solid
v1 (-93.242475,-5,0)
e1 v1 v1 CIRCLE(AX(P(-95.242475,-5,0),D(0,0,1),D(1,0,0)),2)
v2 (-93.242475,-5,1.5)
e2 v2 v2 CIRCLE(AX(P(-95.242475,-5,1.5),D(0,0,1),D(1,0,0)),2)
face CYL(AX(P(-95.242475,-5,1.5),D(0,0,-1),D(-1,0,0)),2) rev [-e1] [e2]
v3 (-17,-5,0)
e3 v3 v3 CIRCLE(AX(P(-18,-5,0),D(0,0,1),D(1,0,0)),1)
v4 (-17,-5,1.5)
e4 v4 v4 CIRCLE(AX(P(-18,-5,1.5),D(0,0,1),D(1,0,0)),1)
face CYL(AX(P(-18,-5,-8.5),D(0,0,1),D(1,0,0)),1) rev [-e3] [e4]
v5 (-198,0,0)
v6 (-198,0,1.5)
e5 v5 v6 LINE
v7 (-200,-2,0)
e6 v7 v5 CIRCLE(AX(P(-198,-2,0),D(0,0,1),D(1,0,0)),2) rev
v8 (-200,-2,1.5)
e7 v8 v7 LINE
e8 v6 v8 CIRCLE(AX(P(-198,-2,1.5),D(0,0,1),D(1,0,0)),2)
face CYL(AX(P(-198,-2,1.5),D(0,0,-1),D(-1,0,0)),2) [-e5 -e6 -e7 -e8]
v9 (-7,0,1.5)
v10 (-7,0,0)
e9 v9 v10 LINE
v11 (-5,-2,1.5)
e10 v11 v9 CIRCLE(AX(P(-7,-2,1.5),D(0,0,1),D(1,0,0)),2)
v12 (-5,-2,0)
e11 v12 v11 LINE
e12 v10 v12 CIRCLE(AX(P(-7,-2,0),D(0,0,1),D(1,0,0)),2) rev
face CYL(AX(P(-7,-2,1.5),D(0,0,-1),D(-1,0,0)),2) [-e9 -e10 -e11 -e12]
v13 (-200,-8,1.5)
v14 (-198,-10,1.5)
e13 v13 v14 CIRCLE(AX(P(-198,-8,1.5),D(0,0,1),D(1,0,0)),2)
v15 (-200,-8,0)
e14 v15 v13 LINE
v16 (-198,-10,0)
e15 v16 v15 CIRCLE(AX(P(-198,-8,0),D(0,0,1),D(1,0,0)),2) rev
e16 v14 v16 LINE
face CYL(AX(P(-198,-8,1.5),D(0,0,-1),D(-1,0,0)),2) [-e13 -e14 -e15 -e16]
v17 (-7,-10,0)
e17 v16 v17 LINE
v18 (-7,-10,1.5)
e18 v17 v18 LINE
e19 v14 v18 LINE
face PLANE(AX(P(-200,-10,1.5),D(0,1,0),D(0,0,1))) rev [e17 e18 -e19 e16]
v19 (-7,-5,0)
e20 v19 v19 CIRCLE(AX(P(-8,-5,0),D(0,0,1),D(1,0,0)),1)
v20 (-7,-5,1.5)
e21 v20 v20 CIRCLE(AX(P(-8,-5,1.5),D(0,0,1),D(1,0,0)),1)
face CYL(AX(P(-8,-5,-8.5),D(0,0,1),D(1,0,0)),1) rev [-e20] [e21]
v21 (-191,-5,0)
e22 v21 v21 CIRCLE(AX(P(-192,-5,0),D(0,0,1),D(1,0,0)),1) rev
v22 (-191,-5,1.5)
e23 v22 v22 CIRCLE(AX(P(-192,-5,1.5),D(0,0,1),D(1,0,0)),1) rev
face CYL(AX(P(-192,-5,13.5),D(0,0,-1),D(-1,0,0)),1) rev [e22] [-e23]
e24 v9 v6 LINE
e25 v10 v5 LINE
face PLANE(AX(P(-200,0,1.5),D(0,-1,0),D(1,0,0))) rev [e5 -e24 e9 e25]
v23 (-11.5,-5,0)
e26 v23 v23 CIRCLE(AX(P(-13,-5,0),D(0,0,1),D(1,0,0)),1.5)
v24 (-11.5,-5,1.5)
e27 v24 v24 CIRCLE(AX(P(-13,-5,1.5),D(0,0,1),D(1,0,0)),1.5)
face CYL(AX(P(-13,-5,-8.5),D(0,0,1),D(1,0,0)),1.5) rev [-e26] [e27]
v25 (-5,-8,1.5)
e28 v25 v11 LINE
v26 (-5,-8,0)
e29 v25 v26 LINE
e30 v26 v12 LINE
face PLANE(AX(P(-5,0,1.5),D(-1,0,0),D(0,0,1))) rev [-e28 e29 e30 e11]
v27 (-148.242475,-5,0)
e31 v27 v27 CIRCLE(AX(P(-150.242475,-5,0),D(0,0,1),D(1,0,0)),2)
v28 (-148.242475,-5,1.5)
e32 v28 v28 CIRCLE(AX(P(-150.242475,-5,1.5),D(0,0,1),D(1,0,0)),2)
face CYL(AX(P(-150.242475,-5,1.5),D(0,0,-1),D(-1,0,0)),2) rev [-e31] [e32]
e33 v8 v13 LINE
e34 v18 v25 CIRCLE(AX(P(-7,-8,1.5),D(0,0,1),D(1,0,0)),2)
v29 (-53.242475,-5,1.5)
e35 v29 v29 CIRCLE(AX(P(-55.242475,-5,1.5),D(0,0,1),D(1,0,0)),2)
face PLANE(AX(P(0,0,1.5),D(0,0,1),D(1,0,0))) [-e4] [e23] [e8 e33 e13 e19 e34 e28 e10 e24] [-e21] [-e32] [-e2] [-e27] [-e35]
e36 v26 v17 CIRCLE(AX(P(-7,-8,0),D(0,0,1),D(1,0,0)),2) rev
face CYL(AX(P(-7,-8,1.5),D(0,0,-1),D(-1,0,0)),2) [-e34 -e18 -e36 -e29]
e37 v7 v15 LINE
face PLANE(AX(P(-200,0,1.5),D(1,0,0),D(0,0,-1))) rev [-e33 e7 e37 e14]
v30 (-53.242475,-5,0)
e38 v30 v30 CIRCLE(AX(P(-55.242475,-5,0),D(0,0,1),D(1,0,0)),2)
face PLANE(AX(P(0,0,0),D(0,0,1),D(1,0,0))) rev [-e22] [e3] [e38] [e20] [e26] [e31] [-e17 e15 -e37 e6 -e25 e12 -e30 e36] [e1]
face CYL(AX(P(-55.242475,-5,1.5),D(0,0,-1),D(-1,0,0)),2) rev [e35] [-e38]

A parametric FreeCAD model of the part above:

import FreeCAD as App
import Part
import Sketcher

V = App.Vector


def edges_at(feature, points):
    """Names of the edges that pass closest to the given points."""
    edges = feature.Shape.Edges
    near = lambda p: min(range(len(edges)), key=lambda i: edges[i].distToShape(Part.Vertex(*p))[0])
    return sorted({f"Edge{near(p) + 1}" for p in points})


def add_polygon(sketch, points):
    """Adds a closed chain of lines whose ends are joined by coincident constraints."""
    first, n = sketch.GeometryCount, len(points)
    for a, b in zip(points, points[1:] + points[:1]):
        sketch.addGeometry(Part.LineSegment(App.Vector(*a, 0), App.Vector(*b, 0)), False)
    for i in range(n):
        sketch.addConstraint(Sketcher.Constraint("Coincident", first + i, 2, first + (i + 1) % n, 1))

doc = App.newDocument("Part")
body = doc.addObject("PartDesign::Body", "Body")

sketch1 = body.newObject("Sketcher::SketchObject", "Sketch")
sketch1.AttachmentSupport = (doc.getObject("XY_Plane"), [""])
sketch1.MapMode = "FlatFace"
add_polygon(sketch1, [(-200, 0), (-200, -10), (-5, -10), (-5, 0)])
sketch1.addGeometry(Part.Circle(V(-150.242475, -5, 0), V(0, 0, 1), 2), False)
sketch1.addGeometry(Part.Circle(V(-95.242475, -5, 0), V(0, 0, 1), 2), False)
sketch1.addGeometry(Part.Circle(V(-55.242475, -5, 0), V(0, 0, 1), 2), False)
sketch1.addConstraint([
    Sketcher.Constraint("Vertical", 0),
    Sketcher.Constraint("Horizontal", 1),
    Sketcher.Constraint("Vertical", 2),
    Sketcher.Constraint("Horizontal", 3),
    Sketcher.Constraint("Equal", 4, 5),
    Sketcher.Constraint("Equal", 5, 6),
    Sketcher.Constraint("PointOnObject", 2, 2, -1),
    Sketcher.Constraint("Horizontal", 4, 3, 5, 3),
    Sketcher.Constraint("Horizontal", 5, 3, 6, 3),
    Sketcher.Constraint("Diameter", 4, 4.0),
    Sketcher.Constraint("DistanceX", 1, 1, 1, 2, 195.0),
    Sketcher.Constraint("DistanceY", 0, 2, 0, 1, 10.0),
    Sketcher.Constraint("DistanceY", 4, 3, -1, 1, 5.0),
    Sketcher.Constraint("DistanceX", 0, 2, -1, 1, 200.0),
    Sketcher.Constraint("DistanceX", 4, 3, 5, 3, 55.0),
    Sketcher.Constraint("DistanceX", 5, 3, 6, 3, 40.0),
    Sketcher.Constraint("DistanceX", 4, 3, -1, 1, 150.242475),
])
pad1 = body.newObject("PartDesign::Pad", "Pad")
pad1.Profile = sketch1
pad1.Length = 1.5

sketch2 = body.newObject("Sketcher::SketchObject", "Sketch001")
sketch2.AttachmentSupport = (doc.getObject("XY_Plane"), [""])
sketch2.MapMode = "FlatFace"
sketch2.AttachmentOffset = App.Placement(V(0, 0, 1.5), App.Rotation())
sketch2.addGeometry(Part.Circle(V(-192, -5, 0), V(0, 0, 1), 1), False)
sketch2.addConstraint([
    Sketcher.Constraint("Diameter", 0, 2.0),
    Sketcher.Constraint("DistanceX", 0, 3, -1, 1, 192.0),
    Sketcher.Constraint("DistanceY", 0, 3, -1, 1, 5.0),
])
pocket1 = body.newObject("PartDesign::Pocket", "Pocket")
pocket1.Profile = sketch2
pocket1.Type = "ThroughAll"
pocket1.Midplane = True

sketch3 = body.newObject("Sketcher::SketchObject", "Sketch002")
sketch3.AttachmentSupport = (doc.getObject("XY_Plane"), [""])
sketch3.MapMode = "FlatFace"
sketch3.AttachmentOffset = App.Placement(V(0, 0, 1.5), App.Rotation())
sketch3.addGeometry([
    Part.Circle(V(-8, -5, 0), V(0, 0, 1), 1),
    Part.Circle(V(-13, -5, 0), V(0, 0, 1), 1.5),
    Part.Circle(V(-18, -5, 0), V(0, 0, 1), 1),
], False)
sketch3.addConstraint([
    Sketcher.Constraint("Equal", 0, 2),
    Sketcher.Constraint("Horizontal", 0, 3, 1, 3),
    Sketcher.Constraint("Horizontal", 1, 3, 2, 3),
    Sketcher.Constraint("Diameter", 0, 2.0),
    Sketcher.Constraint("Diameter", 1, 3.0),
    Sketcher.Constraint("DistanceX", 0, 3, -1, 1, 8.0),
    Sketcher.Constraint("DistanceY", 0, 3, -1, 1, 5.0),
    Sketcher.Constraint("DistanceX", 1, 3, -1, 1, 13.0),
    Sketcher.Constraint("DistanceX", 2, 3, -1, 1, 18.0),
])
pocket2 = body.newObject("PartDesign::Pocket", "Pocket001")
pocket2.Profile = sketch3
pocket2.Length = 10
doc.recompute()

fillet = body.newObject("PartDesign::Fillet", "Fillet")
fillet.Base = (pocket2, edges_at(pocket2, [
    (-200, 0, 0.75),
    (-5, 0, 0.75),
    (-5, -10, 0.75),
    (-200, -10, 0.75),
]))
fillet.Radius = 2

doc.recompute()
